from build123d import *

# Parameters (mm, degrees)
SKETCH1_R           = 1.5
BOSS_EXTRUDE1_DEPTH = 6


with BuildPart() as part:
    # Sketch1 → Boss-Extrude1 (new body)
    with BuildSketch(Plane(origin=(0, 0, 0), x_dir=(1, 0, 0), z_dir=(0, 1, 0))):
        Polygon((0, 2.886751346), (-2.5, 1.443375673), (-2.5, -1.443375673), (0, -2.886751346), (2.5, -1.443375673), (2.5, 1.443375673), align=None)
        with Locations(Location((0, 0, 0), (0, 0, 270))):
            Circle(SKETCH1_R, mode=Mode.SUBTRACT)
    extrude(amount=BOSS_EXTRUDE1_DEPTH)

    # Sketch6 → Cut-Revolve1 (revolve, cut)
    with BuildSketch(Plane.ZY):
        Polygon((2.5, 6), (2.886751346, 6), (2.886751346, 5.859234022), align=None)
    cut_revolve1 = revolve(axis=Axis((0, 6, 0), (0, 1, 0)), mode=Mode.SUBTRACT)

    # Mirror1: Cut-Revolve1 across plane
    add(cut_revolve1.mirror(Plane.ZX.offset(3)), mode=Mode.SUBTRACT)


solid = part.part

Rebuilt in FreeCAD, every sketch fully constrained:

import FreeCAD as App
import Part
import Sketcher

V = App.Vector
Q = App.Units.Quantity


def add_polygon(sketch, points):
    """Adds a closed chain of lines whose ends are joined by coincident constraints."""
    first, n = sketch.GeometryCount, len(points)
    for a, b in zip(points, points[1:] + points[:1]):
        sketch.addGeometry(Part.LineSegment(App.Vector(*a, 0), App.Vector(*b, 0)), False)
    for i in range(n):
        sketch.addConstraint(Sketcher.Constraint("Coincident", first + i, 2, first + (i + 1) % n, 1))

doc = App.newDocument("Part")
params = doc.addObject("Spreadsheet::Sheet", "Params")
for row, (alias, value) in enumerate([
    ("sketch1_diameter", "3 mm"),
    ("pad1_length", "6 mm"),
    ("groove_angle", "360 deg"),
], start=1):
    params.set(f"A{row}", alias)
    params.set(f"B{row}", "=" + value)
    params.setAlias(f"B{row}", alias)

body = doc.addObject("PartDesign::Body", "Body")

# Sketch on XZ plane
sketch1 = body.newObject("Sketcher::SketchObject", "Sketch")
sketch1.AttachmentSupport = (doc.getObject("XZ_Plane"), [""])
sketch1.MapMode = "FlatFace"
add_polygon(sketch1, [(0, -2.9), (-2.5, -1.4), (-2.5, 1.4), (0, 2.9), (2.5, 1.4), (2.5, -1.4)])  # lines 0-5
sketch1.addGeometry(Part.Circle(V(0, 0, 0), V(0, 0, 1), 1.5), False)  # 6
sketch1.addConstraint([
    Sketcher.Constraint("Vertical", 1),
    Sketcher.Constraint("Vertical", 4),
    Sketcher.Constraint("Coincident", 6, 3, -1, 1),
    Sketcher.Constraint("Symmetric", 0, 2, 3, 2, -1, 1),
    Sketcher.Constraint("Symmetric", 2, 2, 5, 2, -1, 1),
    Sketcher.Constraint("PointOnObject", 2, 2, -2),
    Sketcher.Constraint("Parallel", 2, 5),
    Sketcher.Constraint("Horizontal", 1, 2, 3, 2),
    Sketcher.Constraint("Diameter", 6, Q("3 mm")),
    Sketcher.Constraint("Angle", 0, Q("150 deg")),
    Sketcher.Constraint("DistanceX", 1, 2, 3, 2, Q("5 mm")),
    Sketcher.Constraint("DistanceY", 1, 1, 1, 2, Q("2.886751 mm")),
])
sketch1.setExpression("Constraints[14]", "Params.sketch1_diameter")
pad1 = body.newObject("PartDesign::Pad", "Pad")
pad1.Profile = sketch1
pad1.setExpression("Length", "Params.pad1_length")
pad1.Reversed = True

# Sketch on YZ plane
sketch2 = body.newObject("Sketcher::SketchObject", "Sketch001")
sketch2.AttachmentSupport = (doc.getObject("YZ_Plane"), [""])
sketch2.MapMode = "FlatFace"
add_polygon(sketch2, [(6, 2.89), (6, 2.5), (5.86, 2.89)])  # lines 0-2
sketch2.addConstraint([
    Sketcher.Constraint("Vertical", 0),
    Sketcher.Constraint("Horizontal", 2),
    Sketcher.Constraint("Angle", 1, Q("110 deg")),
    Sketcher.Constraint("DistanceX", -1, 1, 0, 2, Q("6 mm")),
    Sketcher.Constraint("DistanceY", -1, 1, 0, 2, Q("2.5 mm")),
    Sketcher.Constraint("DistanceY", 0, 2, 0, 1, Q("0.386751 mm")),
])
groove = body.newObject("PartDesign::Groove", "Groove")
groove.Profile = sketch2
groove.ReferenceAxis = (sketch2, ["H_Axis"])
groove.setExpression("Angle", "Params.groove_angle")
doc.recompute()

datumplane = body.newObject("PartDesign::Plane", "DatumPlane")
datumplane.AttachmentSupport = (doc.getObject("XZ_Plane"), [""])
datumplane.MapMode = "FlatFace"
datumplane.AttachmentOffset = App.Placement(V(0, 0, -3), App.Rotation())
mirrored = body.newObject("PartDesign::Mirrored", "Mirrored")
mirrored.Originals = [groove]
mirrored.MirrorPlane = (datumplane, [""])
body.Tip = mirrored

doc.recompute()
